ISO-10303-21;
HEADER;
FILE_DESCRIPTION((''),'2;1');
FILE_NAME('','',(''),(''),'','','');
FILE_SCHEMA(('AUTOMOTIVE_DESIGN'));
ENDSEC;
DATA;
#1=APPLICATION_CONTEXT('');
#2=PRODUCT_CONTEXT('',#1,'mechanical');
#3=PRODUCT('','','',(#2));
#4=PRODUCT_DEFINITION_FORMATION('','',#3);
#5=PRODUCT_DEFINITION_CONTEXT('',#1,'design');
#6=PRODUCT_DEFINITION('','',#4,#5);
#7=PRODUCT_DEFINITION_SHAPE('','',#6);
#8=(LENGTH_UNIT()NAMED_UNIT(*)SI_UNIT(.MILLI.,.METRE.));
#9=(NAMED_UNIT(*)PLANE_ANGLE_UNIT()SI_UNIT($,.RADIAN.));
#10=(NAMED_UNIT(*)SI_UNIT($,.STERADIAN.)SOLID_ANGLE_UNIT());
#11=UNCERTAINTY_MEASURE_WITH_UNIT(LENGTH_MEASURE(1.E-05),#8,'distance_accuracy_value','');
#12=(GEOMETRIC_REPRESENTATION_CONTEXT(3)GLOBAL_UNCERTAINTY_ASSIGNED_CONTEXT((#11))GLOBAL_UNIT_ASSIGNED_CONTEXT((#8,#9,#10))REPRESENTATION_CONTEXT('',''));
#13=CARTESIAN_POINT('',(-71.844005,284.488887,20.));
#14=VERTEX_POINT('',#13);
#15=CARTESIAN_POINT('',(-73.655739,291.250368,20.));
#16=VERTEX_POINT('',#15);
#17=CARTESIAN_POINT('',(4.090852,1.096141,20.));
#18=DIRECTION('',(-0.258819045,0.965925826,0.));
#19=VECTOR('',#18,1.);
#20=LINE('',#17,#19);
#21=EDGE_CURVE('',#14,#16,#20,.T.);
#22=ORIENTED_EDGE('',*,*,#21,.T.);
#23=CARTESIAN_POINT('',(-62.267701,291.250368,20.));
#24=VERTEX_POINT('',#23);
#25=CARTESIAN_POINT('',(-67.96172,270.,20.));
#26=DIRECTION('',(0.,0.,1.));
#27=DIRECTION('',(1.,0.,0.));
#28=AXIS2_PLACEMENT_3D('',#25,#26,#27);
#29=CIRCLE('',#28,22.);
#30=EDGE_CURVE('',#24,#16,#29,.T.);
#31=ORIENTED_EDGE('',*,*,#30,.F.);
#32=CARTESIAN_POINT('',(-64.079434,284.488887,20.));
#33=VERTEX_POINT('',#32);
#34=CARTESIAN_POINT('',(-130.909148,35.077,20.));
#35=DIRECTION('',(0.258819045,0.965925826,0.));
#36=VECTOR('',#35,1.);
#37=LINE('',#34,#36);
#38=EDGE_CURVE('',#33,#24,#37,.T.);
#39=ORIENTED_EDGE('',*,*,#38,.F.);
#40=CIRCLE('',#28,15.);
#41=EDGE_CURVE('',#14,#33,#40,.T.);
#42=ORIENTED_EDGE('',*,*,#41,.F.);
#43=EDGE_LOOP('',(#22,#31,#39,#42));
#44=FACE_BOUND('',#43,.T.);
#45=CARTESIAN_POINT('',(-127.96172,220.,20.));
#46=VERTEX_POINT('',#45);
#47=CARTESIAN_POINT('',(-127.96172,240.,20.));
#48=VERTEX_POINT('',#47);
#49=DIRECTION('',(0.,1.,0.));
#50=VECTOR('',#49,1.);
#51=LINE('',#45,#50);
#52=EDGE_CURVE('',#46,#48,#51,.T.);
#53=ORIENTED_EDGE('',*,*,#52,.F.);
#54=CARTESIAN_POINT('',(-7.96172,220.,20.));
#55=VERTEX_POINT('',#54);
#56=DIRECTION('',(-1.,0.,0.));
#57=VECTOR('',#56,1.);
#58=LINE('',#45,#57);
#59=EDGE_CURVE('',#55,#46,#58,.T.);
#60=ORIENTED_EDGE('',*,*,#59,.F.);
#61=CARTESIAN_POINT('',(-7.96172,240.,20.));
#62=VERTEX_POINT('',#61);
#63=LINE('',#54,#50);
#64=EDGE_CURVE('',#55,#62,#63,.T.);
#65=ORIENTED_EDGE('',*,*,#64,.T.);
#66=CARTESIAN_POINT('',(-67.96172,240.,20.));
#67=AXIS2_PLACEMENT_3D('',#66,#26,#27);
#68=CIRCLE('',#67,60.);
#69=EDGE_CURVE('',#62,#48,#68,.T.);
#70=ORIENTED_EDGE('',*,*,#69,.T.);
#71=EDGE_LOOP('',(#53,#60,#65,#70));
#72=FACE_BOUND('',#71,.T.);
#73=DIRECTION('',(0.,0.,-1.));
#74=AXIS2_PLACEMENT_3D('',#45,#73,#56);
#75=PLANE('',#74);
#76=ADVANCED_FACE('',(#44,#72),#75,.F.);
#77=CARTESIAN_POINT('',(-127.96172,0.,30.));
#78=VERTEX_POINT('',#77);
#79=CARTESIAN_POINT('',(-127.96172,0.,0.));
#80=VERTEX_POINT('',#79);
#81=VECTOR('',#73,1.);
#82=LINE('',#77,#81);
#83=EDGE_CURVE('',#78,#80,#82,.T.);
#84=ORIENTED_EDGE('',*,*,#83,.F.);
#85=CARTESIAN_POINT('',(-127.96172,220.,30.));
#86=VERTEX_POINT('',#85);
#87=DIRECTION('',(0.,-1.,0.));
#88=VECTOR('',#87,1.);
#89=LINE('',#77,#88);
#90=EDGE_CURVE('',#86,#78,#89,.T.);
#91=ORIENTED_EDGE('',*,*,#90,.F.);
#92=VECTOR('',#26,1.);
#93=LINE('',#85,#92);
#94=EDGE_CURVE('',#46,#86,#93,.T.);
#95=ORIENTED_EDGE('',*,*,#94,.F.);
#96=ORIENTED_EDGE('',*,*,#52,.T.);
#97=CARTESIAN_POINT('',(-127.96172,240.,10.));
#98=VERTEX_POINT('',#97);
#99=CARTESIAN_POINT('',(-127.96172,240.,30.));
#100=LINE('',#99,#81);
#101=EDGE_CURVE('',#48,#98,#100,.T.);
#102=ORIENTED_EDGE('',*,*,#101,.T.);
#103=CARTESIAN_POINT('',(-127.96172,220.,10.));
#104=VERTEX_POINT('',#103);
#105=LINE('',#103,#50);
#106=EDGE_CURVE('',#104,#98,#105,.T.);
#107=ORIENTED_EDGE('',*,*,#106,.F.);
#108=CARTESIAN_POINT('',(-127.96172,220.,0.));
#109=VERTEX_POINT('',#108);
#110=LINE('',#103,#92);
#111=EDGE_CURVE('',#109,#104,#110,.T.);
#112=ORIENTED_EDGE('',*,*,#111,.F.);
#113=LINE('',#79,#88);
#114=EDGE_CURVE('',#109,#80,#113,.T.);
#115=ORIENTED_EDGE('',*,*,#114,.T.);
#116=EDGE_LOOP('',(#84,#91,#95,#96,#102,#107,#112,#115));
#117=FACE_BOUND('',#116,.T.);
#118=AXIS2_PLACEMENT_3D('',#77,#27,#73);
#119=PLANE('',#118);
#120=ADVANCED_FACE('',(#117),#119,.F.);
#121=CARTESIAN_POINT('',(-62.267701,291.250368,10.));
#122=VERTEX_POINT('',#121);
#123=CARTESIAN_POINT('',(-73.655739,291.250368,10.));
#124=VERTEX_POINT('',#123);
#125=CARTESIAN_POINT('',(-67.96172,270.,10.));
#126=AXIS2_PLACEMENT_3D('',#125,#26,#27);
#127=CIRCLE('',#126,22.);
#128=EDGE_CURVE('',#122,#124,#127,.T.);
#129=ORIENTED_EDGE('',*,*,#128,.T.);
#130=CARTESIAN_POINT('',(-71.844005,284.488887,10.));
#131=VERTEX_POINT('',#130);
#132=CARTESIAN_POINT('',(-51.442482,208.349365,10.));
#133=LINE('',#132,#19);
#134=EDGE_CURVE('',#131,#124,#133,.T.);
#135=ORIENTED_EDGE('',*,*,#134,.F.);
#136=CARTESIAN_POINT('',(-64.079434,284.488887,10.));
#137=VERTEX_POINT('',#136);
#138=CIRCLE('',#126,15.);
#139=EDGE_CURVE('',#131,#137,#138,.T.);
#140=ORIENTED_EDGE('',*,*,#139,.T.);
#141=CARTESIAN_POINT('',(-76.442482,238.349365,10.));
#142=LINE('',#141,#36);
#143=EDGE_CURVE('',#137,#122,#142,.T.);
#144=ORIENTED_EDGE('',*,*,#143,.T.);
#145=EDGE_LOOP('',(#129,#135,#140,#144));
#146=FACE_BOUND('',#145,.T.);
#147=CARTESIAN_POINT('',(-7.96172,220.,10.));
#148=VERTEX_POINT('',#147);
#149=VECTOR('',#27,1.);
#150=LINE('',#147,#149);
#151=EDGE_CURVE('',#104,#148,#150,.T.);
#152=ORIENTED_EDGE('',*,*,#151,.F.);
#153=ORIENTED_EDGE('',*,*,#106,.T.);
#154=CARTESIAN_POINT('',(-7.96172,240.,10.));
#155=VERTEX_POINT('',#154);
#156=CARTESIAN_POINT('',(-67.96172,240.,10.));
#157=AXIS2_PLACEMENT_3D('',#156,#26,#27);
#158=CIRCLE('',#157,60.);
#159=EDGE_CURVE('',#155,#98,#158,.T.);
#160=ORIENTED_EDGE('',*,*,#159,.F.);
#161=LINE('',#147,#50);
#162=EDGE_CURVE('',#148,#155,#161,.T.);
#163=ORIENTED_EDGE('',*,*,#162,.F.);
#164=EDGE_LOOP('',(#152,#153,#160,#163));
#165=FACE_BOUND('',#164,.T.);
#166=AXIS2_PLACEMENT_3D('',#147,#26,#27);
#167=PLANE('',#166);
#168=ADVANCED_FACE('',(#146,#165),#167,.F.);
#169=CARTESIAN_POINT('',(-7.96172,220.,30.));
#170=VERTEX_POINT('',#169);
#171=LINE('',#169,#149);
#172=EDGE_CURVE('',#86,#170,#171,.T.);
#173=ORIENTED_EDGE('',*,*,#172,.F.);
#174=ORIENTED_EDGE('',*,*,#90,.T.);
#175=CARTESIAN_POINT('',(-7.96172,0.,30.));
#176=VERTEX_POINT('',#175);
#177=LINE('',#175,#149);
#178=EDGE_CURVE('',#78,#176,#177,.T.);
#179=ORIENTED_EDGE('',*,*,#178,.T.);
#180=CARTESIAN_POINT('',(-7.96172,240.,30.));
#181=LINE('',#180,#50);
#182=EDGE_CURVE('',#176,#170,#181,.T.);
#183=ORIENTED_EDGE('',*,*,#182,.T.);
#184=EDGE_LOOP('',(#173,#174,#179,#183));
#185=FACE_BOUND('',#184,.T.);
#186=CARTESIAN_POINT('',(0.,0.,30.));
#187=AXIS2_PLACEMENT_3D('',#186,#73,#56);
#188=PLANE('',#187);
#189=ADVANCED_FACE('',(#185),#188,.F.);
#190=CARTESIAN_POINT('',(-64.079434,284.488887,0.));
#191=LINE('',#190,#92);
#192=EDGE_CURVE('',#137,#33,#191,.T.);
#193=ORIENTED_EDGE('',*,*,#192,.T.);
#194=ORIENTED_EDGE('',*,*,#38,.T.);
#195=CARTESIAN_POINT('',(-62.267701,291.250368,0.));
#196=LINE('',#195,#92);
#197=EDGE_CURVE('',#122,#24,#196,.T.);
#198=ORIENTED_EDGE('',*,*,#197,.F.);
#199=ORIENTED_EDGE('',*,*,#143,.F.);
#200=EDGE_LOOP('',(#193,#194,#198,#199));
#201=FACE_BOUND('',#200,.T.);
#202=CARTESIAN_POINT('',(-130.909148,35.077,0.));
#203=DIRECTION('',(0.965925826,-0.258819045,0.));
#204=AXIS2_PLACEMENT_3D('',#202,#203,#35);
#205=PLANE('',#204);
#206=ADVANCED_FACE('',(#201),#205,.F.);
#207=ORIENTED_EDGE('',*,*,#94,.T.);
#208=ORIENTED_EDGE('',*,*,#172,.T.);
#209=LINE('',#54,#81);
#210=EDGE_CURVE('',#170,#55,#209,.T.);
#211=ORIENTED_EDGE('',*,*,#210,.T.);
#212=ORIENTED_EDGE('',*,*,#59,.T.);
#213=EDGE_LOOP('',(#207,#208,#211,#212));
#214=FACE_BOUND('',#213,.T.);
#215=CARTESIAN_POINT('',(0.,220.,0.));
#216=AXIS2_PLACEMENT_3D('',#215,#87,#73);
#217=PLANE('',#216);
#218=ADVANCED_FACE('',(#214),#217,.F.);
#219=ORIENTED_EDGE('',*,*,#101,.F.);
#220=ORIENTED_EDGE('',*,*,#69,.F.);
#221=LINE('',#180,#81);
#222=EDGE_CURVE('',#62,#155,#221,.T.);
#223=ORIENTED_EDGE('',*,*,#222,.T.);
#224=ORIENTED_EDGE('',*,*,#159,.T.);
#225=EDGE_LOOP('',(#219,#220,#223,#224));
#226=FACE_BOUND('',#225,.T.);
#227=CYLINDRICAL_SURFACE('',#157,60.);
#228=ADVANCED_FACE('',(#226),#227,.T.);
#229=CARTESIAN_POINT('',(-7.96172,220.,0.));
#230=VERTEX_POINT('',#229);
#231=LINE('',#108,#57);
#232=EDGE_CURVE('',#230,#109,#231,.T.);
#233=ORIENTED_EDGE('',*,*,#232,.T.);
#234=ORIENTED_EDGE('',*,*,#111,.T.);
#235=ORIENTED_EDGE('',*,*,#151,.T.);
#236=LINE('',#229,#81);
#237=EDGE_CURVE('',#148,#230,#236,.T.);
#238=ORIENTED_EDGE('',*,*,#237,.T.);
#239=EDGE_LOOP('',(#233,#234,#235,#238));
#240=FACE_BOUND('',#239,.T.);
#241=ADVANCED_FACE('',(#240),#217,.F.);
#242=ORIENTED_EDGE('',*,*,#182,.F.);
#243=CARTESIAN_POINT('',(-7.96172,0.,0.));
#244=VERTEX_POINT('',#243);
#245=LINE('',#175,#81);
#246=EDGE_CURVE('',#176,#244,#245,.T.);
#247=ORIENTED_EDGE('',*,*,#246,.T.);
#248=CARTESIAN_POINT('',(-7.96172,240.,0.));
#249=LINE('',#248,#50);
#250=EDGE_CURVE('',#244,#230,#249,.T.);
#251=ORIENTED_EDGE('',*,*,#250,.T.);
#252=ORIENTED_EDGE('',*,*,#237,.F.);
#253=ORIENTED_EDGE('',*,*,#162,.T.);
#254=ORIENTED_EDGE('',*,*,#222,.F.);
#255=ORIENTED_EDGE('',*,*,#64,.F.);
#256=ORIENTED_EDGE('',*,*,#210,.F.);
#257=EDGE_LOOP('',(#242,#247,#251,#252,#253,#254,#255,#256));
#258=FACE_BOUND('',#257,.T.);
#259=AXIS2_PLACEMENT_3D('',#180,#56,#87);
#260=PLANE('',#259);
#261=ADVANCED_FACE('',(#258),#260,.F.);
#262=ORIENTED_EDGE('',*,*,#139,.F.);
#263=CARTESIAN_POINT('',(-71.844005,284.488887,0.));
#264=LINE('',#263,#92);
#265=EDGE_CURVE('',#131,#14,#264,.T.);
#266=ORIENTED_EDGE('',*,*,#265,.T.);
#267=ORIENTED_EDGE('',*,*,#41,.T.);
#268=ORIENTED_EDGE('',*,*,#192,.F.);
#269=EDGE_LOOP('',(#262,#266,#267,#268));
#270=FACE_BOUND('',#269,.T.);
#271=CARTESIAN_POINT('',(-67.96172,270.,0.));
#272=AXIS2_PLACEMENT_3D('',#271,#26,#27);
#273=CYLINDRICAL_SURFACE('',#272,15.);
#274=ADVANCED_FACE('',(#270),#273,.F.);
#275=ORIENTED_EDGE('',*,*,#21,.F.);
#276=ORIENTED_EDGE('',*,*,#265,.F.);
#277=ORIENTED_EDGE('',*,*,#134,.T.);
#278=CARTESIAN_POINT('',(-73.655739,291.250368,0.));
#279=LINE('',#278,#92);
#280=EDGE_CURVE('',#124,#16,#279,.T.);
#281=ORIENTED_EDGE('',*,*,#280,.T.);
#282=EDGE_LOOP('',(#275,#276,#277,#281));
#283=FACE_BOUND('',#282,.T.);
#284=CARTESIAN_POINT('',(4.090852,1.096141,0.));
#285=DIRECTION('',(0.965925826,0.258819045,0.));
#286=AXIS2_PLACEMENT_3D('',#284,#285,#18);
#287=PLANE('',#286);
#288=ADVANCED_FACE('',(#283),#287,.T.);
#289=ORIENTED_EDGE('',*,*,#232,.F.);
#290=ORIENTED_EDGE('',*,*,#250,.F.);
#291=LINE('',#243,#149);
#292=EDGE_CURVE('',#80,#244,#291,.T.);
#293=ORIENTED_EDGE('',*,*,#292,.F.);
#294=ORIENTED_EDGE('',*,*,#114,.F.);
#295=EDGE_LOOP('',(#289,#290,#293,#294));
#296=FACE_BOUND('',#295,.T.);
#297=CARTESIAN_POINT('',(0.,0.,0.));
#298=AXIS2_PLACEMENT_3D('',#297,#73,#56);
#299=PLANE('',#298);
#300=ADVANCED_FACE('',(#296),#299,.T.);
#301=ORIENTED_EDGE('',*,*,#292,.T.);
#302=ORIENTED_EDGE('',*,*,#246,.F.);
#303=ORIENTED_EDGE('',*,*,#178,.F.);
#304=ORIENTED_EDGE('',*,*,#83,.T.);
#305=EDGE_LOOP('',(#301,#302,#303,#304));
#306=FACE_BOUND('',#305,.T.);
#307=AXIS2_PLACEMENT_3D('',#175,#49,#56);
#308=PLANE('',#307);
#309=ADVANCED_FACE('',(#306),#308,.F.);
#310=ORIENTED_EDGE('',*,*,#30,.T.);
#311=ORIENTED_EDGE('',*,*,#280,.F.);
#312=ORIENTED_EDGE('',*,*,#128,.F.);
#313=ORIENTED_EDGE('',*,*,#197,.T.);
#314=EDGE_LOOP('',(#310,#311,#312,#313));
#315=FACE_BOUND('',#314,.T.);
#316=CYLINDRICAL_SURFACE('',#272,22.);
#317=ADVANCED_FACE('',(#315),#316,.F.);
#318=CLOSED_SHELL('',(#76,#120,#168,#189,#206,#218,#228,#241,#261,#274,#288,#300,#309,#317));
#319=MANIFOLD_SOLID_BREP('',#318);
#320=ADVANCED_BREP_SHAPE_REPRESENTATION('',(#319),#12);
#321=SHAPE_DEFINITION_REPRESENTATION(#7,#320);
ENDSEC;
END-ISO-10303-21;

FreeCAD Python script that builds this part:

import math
import FreeCAD as App
import Part
import Sketcher

V = App.Vector
Q = App.Units.Quantity


def add_polygon(sketch, points):
    """Adds a closed chain of lines whose ends are joined by coincident constraints."""
    first, n = sketch.GeometryCount, len(points)
    for a, b in zip(points, points[1:] + points[:1]):
        sketch.addGeometry(Part.LineSegment(App.Vector(*a, 0), App.Vector(*b, 0)), False)
    for i in range(n):
        sketch.addConstraint(Sketcher.Constraint("Coincident", first + i, 2, first + (i + 1) % n, 1))

doc = App.newDocument("Part")
params = doc.addObject("Spreadsheet::Sheet", "Params")
for row, (alias, value) in enumerate([
    ("sketch1_width", "120 mm"),
    ("sketch1_height", "240 mm"),
    ("pad1_length", "30 mm"),
    ("sketch2_width", "120 mm"),
    ("sketch2_height", "10 mm"),
    ("pocket1_length", "20 mm"),
    ("sketch3_diameter", "120 mm"),
    ("pad2_length", "10 mm"),
    ("sketch4_radius", "22 mm"),
    ("sketch4_radius2", "15 mm"),
], start=1):
    params.set(f"A{row}", alias)
    params.set(f"B{row}", "=" + value)
    params.setAlias(f"B{row}", alias)

body = doc.addObject("PartDesign::Body", "Body")

sketch1 = body.newObject("Sketcher::SketchObject", "Sketch")
sketch1.AttachmentSupport = (doc.getObject("XY_Plane"), [""])
sketch1.MapMode = "FlatFace"
add_polygon(sketch1, [(-128, 240), (-128, 0), (-8, 0), (-8, 240)])
sketch1.addConstraint([
    Sketcher.Constraint("Vertical", 0),
    Sketcher.Constraint("Horizontal", 1),
    Sketcher.Constraint("Vertical", 2),
    Sketcher.Constraint("Horizontal", 3),
    Sketcher.Constraint("PointOnObject", 0, 2, -1),
    Sketcher.Constraint("DistanceX", 1, 1, 1, 2, Q("120 mm")),
    Sketcher.Constraint("DistanceY", 0, 2, 0, 1, Q("240 mm")),
    Sketcher.Constraint("DistanceX", 0, 2, -1, 1, Q("127.96172 mm")),
])
sketch1.setExpression("Constraints[9]", "Params.sketch1_width")
sketch1.setExpression("Constraints[10]", "Params.sketch1_height")
pad1 = body.newObject("PartDesign::Pad", "Pad")
pad1.Profile = sketch1
pad1.setExpression("Length", "Params.pad1_length")

sketch2 = body.newObject("Sketcher::SketchObject", "Sketch001")
sketch2.AttachmentSupport = (doc.getObject("XZ_Plane"), [""])
sketch2.MapMode = "FlatFace"
sketch2.AttachmentOffset = App.Placement(V(0, 0, -240), App.Rotation())
add_polygon(sketch2, [(-128, 0), (-128, 10), (-8, 10), (-8, 0)])
add_polygon(sketch2, [(-128, 20), (-128, 30), (-8, 30), (-8, 20)])
sketch2.addConstraint([
    Sketcher.Constraint("Vertical", 0),
    Sketcher.Constraint("Horizontal", 1),
    Sketcher.Constraint("Vertical", 2),
    Sketcher.Constraint("Horizontal", 3),
    Sketcher.Constraint("Vertical", 4),
    Sketcher.Constraint("Horizontal", 5),
    Sketcher.Constraint("Vertical", 6),
    Sketcher.Constraint("Horizontal", 7),
    Sketcher.Constraint("PointOnObject", 2, 2, -1),
    Sketcher.Constraint("Vertical", 3, 2, 4, 2),
    Sketcher.Constraint("Vertical", 2, 2, 5, 2),
    Sketcher.Constraint("Equal", 2, 4),
    Sketcher.Constraint("DistanceX", 1, 1, 1, 2, Q("120 mm")),
    Sketcher.Constraint("DistanceY", 0, 1, 0, 2, Q("10 mm")),
    Sketcher.Constraint("DistanceY", -1, 1, 4, 2, Q("30 mm")),
    Sketcher.Constraint("DistanceX", 0, 2, -1, 1, Q("127.96172 mm")),
])
sketch2.setExpression("Constraints[20]", "Params.sketch2_width")
sketch2.setExpression("Constraints[21]", "Params.sketch2_height")
pocket1 = body.newObject("PartDesign::Pocket", "Pocket")
pocket1.Profile = sketch2
pocket1.setExpression("Length", "Params.pocket1_length")
pocket1.Reversed = True

sketch3 = body.newObject("Sketcher::SketchObject", "Sketch002")
sketch3.AttachmentSupport = (doc.getObject("XY_Plane"), [""])
sketch3.MapMode = "FlatFace"
sketch3.AttachmentOffset = App.Placement(V(0, 0, 20), App.Rotation())
sketch3.addGeometry(Part.Circle(V(-68, 240, 0), V(0, 0, 1), 60), False)
sketch3.addConstraint([
    Sketcher.Constraint("Diameter", 0, Q("120 mm")),
    Sketcher.Constraint("DistanceY", -1, 1, 0, 3, Q("240 mm")),
    Sketcher.Constraint("DistanceX", 0, 3, -1, 1, Q("67.96172 mm")),
])
sketch3.setExpression("Constraints[0]", "Params.sketch3_diameter")
pad2 = body.newObject("PartDesign::Pad", "Pad001")
pad2.Profile = sketch3
pad2.setExpression("Length", "Params.pad2_length")
pad2.Reversed = True

sketch4 = body.newObject("Sketcher::SketchObject", "Sketch003")
sketch4.AttachmentSupport = (doc.getObject("XY_Plane"), [""])
sketch4.MapMode = "FlatFace"
sketch4.AttachmentOffset = App.Placement(V(0, 0, 20), App.Rotation())
sketch4.addGeometry([
    Part.ArcOfCircle(Part.Circle(V(-68, 270, 0), V(0, 0, 1), 22), math.radians(75), math.radians(105)),
    Part.LineSegment(V(-74, 291, 0), V(-72, 284, 0)),
    Part.ArcOfCircle(Part.Circle(V(-68, 270, 0), V(0, 0, 1), 15), math.radians(105), math.radians(270)),
    Part.ArcOfCircle(Part.Circle(V(-68, 270, 0), V(0, 0, 1), 15), math.radians(-90), math.radians(0)),
    Part.ArcOfCircle(Part.Circle(V(-68, 270, 0), V(0, 0, 1), 15), math.radians(0), math.radians(75)),
    Part.LineSegment(V(-64, 284, 0), V(-62, 291, 0)),
], False)
sketch4.addConstraint([
    Sketcher.Constraint("Coincident", 0, 2, 1, 1),
    Sketcher.Constraint("Coincident", 1, 2, 2, 1),
    Sketcher.Constraint("Tangent", 2, 2, 3, 1),
    Sketcher.Constraint("Tangent", 3, 2, 4, 1),
    Sketcher.Constraint("Coincident", 4, 2, 5, 1),
    Sketcher.Constraint("Coincident", 5, 2, 0, 1),
    Sketcher.Constraint("Coincident", 2, 3, 0, 3),
    Sketcher.Constraint("Coincident", 4, 3, 0, 3),
    Sketcher.Constraint("Horizontal", 4, 3, 3, 2),
    Sketcher.Constraint("Horizontal", 1, 2, 4, 2),
    Sketcher.Constraint("Horizontal", 0, 2, 5, 2),
    Sketcher.Constraint("Vertical", 4, 3, 2, 2),
    Sketcher.Constraint("Radius", 0, Q("22 mm")),
    Sketcher.Constraint("Radius", 2, Q("15 mm")),
    Sketcher.Constraint("Angle", 1, Q("-75 deg")),
    Sketcher.Constraint("DistanceY", -1, 1, 0, 3, Q("270 mm")),
    Sketcher.Constraint("DistanceX", 5, 2, -1, 1, Q("62.267701 mm")),
    Sketcher.Constraint("DistanceX", 0, 3, -1, 1, Q("67.96172 mm")),
])
sketch4.setExpression("Constraints[12]", "Params.sketch4_radius")
sketch4.setExpression("Constraints[13]", "Params.sketch4_radius2")
pocket2 = body.newObject("PartDesign::Pocket", "Pocket001")
pocket2.Profile = sketch4
pocket2.Type = "ThroughAll"

doc.recompute()
